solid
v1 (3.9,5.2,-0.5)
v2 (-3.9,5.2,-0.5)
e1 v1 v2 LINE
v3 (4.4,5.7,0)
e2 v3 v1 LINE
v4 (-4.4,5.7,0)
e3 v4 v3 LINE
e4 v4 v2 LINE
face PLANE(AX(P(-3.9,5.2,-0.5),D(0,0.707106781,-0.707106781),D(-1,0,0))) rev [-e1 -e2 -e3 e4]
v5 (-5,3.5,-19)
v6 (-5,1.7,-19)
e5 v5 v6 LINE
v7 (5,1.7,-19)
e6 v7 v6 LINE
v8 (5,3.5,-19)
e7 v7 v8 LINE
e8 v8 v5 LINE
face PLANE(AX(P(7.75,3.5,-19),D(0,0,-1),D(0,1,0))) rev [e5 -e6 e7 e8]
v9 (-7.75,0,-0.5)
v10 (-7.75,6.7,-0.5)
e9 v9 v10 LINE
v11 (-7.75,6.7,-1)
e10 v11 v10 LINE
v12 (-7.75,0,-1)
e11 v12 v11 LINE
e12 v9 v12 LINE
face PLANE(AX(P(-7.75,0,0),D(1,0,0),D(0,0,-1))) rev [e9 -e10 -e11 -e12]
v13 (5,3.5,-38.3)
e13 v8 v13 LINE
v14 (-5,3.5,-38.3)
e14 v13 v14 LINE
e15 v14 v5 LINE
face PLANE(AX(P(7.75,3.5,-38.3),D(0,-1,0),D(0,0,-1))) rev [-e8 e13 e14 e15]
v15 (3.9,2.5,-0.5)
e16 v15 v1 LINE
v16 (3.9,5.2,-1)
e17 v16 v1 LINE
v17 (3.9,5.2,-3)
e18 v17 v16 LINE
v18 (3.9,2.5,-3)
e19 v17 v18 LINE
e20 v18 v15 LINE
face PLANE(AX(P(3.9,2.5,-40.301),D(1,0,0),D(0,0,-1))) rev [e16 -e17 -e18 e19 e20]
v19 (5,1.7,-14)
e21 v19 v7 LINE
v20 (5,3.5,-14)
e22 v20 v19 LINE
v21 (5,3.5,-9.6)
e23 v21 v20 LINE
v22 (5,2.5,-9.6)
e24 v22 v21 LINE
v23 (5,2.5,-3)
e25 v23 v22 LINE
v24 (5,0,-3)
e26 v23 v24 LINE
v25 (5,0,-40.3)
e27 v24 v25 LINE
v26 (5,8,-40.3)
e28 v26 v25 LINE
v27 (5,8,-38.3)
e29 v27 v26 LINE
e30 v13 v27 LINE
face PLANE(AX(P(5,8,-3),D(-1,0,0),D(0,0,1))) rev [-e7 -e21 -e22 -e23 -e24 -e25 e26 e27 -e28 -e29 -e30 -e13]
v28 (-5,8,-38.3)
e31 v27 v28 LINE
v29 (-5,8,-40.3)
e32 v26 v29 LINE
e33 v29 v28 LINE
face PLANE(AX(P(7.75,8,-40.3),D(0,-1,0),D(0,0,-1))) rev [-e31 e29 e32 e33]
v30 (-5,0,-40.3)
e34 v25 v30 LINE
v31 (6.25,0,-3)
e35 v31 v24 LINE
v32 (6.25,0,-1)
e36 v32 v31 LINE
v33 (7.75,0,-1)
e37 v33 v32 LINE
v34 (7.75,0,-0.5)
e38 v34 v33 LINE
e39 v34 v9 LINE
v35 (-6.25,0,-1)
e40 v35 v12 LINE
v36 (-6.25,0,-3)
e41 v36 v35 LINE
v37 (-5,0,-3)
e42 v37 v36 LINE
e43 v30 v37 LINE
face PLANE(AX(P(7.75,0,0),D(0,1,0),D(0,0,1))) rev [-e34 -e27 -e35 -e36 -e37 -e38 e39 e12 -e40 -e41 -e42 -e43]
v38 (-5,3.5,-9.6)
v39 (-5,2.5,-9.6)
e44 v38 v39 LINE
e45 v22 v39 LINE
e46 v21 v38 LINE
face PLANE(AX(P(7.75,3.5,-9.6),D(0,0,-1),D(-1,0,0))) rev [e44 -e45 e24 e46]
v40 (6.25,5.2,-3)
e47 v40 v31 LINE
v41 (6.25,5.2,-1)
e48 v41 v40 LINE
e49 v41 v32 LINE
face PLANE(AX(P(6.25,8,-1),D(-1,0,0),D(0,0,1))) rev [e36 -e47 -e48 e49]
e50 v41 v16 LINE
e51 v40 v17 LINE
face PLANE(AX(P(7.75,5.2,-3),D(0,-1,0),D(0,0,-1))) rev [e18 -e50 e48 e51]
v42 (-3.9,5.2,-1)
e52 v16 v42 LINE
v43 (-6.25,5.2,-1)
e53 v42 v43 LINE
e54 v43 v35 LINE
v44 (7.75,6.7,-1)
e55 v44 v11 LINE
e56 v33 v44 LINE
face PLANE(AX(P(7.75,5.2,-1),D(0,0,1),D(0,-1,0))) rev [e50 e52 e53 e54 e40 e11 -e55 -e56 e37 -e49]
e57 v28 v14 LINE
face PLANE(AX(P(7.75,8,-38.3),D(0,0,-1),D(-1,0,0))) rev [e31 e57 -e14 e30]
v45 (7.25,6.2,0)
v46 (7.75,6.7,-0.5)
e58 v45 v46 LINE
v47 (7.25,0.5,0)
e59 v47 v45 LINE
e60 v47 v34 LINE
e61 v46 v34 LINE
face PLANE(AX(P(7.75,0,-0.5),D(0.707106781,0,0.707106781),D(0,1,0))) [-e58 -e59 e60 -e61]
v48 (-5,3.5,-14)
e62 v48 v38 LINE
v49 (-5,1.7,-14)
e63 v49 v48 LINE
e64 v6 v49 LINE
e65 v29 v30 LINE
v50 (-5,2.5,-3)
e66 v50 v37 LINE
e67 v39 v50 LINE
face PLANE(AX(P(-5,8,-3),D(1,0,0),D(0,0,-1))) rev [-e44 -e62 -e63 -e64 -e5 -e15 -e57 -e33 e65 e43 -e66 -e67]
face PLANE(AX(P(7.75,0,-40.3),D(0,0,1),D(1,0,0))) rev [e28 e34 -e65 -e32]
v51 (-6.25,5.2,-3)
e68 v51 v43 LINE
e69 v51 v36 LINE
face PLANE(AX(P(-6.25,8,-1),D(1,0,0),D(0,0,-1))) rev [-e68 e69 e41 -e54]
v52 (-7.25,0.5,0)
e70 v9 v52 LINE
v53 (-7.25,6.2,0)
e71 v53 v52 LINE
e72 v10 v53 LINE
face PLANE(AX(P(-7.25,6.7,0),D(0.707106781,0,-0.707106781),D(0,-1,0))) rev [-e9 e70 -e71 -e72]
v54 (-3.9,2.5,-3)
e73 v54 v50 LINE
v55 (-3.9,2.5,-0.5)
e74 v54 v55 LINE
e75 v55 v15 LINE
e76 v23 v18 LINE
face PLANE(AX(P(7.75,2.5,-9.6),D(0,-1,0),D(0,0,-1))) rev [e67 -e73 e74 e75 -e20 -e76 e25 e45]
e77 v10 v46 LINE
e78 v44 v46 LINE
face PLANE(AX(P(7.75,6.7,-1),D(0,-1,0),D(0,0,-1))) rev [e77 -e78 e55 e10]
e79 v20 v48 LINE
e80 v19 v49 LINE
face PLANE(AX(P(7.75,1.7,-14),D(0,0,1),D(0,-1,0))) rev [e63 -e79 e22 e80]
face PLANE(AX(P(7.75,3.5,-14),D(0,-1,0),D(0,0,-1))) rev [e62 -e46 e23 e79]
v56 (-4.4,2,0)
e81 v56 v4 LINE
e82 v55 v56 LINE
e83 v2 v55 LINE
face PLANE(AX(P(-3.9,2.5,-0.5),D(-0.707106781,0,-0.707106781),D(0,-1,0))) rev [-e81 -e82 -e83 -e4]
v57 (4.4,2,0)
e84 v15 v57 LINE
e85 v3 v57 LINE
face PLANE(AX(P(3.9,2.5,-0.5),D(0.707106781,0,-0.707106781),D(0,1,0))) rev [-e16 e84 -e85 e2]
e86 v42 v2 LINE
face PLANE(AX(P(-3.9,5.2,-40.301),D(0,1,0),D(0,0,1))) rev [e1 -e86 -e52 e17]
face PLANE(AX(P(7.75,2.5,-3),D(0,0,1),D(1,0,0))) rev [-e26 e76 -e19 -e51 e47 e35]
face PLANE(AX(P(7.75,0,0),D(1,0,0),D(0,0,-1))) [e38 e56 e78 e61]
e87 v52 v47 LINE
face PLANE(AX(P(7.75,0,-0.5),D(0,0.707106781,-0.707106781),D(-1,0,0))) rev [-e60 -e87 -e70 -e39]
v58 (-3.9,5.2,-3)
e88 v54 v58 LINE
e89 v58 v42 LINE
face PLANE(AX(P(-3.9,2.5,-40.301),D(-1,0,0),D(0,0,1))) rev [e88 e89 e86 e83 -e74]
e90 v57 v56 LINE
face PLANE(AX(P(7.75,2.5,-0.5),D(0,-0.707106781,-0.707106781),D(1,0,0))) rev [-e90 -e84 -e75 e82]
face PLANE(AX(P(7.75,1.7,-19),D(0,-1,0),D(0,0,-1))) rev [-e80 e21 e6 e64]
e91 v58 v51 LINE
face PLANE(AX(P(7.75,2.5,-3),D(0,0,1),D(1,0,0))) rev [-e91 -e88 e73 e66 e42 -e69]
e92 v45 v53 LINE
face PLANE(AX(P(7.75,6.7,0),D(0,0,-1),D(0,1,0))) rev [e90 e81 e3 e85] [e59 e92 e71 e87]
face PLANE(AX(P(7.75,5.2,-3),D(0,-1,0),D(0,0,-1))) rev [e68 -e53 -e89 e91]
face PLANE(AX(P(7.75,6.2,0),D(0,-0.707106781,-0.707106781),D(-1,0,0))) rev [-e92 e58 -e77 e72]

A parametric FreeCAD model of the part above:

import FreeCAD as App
import Part
import Sketcher
from FreeCAD import Vector
Q = App.Units.Quantity


def edges_at(feature, points):
    """Names of the edges that pass closest to the given points."""
    edges = feature.Shape.Edges
    near = lambda p: min(range(len(edges)), key=lambda i: edges[i].distToShape(Part.Vertex(*p))[0])
    return sorted({f"Edge{near(p) + 1}" for p in points})

doc = App.newDocument("Part")
params = doc.addObject("Spreadsheet::Sheet", "Params")
for row, (alias, value) in enumerate([
    ("sketch1_width", "8 mm"),
    ("sketch1_width2", "1 mm"),
    ("sketch1_height", "2 mm"),
    ("sketch1_height2", "5 mm"),
    ("sketch1_width3", "4.5 mm"),
    ("pad1_length", "15.5 mm"),
    ("sketch2_width", "30 mm"),
    ("sketch2_width2", "10 mm"),
    ("sketch2_height", "21 mm"),
    ("sketch2_height2", "2 mm"),
    ("sketch2_height3", "1 mm"),
    ("sketch3_width", "7.8 mm"),
    ("sketch3_height", "2.7 mm"),
    ("chamfer_size", "0.5 mm"),
], start=1):
    params.set(f"A{row}", alias)
    params.set(f"B{row}", "=" + value)
    params.setAlias(f"B{row}", alias)

body = doc.addObject("PartDesign::Body", "Body")

# Sketch on YZ plane
sketch1 = body.newObject("Sketcher::SketchObject", "Sketch")
sketch1.AttachmentSupport = (doc.getObject("YZ_Plane"), [""])
sketch1.MapMode = "FlatFace"
sketch1.addGeometry(Part.LineSegment(Vector(0, 0, 0), Vector(0, -40.3, 0)), False)
sketch1.addGeometry(Part.LineSegment(Vector(0, -40.3, 0), Vector(8, -40.3, 0)), False)
sketch1.addGeometry(Part.LineSegment(Vector(8, -40.3, 0), Vector(8, -38.3, 0)), False)
sketch1.addGeometry(Part.LineSegment(Vector(8, -38.3, 0), Vector(3.5, -38.3, 0)), False)
sketch1.addGeometry(Part.LineSegment(Vector(3.5, -38.3, 0), Vector(3.5, -19, 0)), False)
sketch1.addGeometry(Part.LineSegment(Vector(3.5, -19, 0), Vector(1.7, -19, 0)), False)
sketch1.addGeometry(Part.LineSegment(Vector(1.7, -19, 0), Vector(1.7, -14, 0)), False)
sketch1.addGeometry(Part.LineSegment(Vector(1.7, -14, 0), Vector(3.5, -14, 0)), False)
sketch1.addGeometry(Part.LineSegment(Vector(3.5, -14, 0), Vector(3.5, -9.6, 0)), False)
sketch1.addGeometry(Part.LineSegment(Vector(3.5, -9.6, 0), Vector(2.5, -9.6, 0)), False)
sketch1.addGeometry(Part.LineSegment(Vector(2.5, -9.6, 0), Vector(2.5, -3, 0)), False)
sketch1.addGeometry(Part.LineSegment(Vector(2.5, -3, 0), Vector(5.2, -3, 0)), False)
sketch1.addGeometry(Part.LineSegment(Vector(5.2, -3, 0), Vector(5.2, -1, 0)), False)
sketch1.addGeometry(Part.LineSegment(Vector(5.2, -1, 0), Vector(6.7, -1, 0)), False)
sketch1.addGeometry(Part.LineSegment(Vector(6.7, -1, 0), Vector(6.7, 0, 0)), False)
sketch1.addGeometry(Part.LineSegment(Vector(6.7, 0, 0), Vector(0, 0, 0)), False)
sketch1.addConstraint(Sketcher.Constraint("Coincident", 0, 2, 1, 1))
sketch1.addConstraint(Sketcher.Constraint("Coincident", 1, 2, 2, 1))
sketch1.addConstraint(Sketcher.Constraint("Coincident", 2, 2, 3, 1))
sketch1.addConstraint(Sketcher.Constraint("Coincident", 3, 2, 4, 1))
sketch1.addConstraint(Sketcher.Constraint("Coincident", 4, 2, 5, 1))
sketch1.addConstraint(Sketcher.Constraint("Coincident", 5, 2, 6, 1))
sketch1.addConstraint(Sketcher.Constraint("Coincident", 6, 2, 7, 1))
sketch1.addConstraint(Sketcher.Constraint("Coincident", 7, 2, 8, 1))
sketch1.addConstraint(Sketcher.Constraint("Coincident", 8, 2, 9, 1))
sketch1.addConstraint(Sketcher.Constraint("Coincident", 9, 2, 10, 1))
sketch1.addConstraint(Sketcher.Constraint("Coincident", 10, 2, 11, 1))
sketch1.addConstraint(Sketcher.Constraint("Coincident", 11, 2, 12, 1))
sketch1.addConstraint(Sketcher.Constraint("Coincident", 12, 2, 13, 1))
sketch1.addConstraint(Sketcher.Constraint("Coincident", 13, 2, 14, 1))
sketch1.addConstraint(Sketcher.Constraint("Coincident", 14, 2, 15, 1))
sketch1.addConstraint(Sketcher.Constraint("Coincident", 15, 2, 0, 1))
sketch1.addConstraint(Sketcher.Constraint("Vertical", 0))
sketch1.addConstraint(Sketcher.Constraint("Horizontal", 1))
sketch1.addConstraint(Sketcher.Constraint("Vertical", 2))
sketch1.addConstraint(Sketcher.Constraint("Horizontal", 3))
sketch1.addConstraint(Sketcher.Constraint("Vertical", 4))
sketch1.addConstraint(Sketcher.Constraint("Horizontal", 5))
sketch1.addConstraint(Sketcher.Constraint("Vertical", 6))
sketch1.addConstraint(Sketcher.Constraint("Horizontal", 7))
sketch1.addConstraint(Sketcher.Constraint("Vertical", 8))
sketch1.addConstraint(Sketcher.Constraint("Horizontal", 9))
sketch1.addConstraint(Sketcher.Constraint("Vertical", 10))
sketch1.addConstraint(Sketcher.Constraint("Horizontal", 11))
sketch1.addConstraint(Sketcher.Constraint("Vertical", 12))
sketch1.addConstraint(Sketcher.Constraint("Horizontal", 13))
sketch1.addConstraint(Sketcher.Constraint("Vertical", 14))
sketch1.addConstraint(Sketcher.Constraint("Horizontal", 15))
sketch1.addConstraint(Sketcher.Constraint("Coincident", 15, 2, -1, 1))
sketch1.addConstraint(Sketcher.Constraint("Vertical", 4, 2, 7, 2))
sketch1.addConstraint(Sketcher.Constraint("Equal", 2, 12))
sketch1.addConstraint(Sketcher.Constraint("Equal", 9, 14))
sketch1.addConstraint(Sketcher.Constraint("DistanceX", 1, 1, 1, 2, Q("8 mm")))
sketch1.addConstraint(Sketcher.Constraint("DistanceX", 9, 2, 9, 1, Q("1 mm")))
sketch1.addConstraint(Sketcher.Constraint("DistanceY", 2, 1, 2, 2, Q("2 mm")))
sketch1.addConstraint(Sketcher.Constraint("DistanceY", 6, 1, 6, 2, Q("5 mm")))
sketch1.addConstraint(Sketcher.Constraint("DistanceX", 3, 2, 3, 1, Q("4.5 mm")))
sketch1.addConstraint(Sketcher.Constraint("DistanceX", 5, 2, 5, 1, Q("1.8 mm")))
sketch1.addConstraint(Sketcher.Constraint("DistanceX", 11, 1, 11, 2, Q("2.7 mm")))
sketch1.addConstraint(Sketcher.Constraint("DistanceX", 13, 1, 13, 2, Q("1.5 mm")))
sketch1.addConstraint(Sketcher.Constraint("DistanceY", 0, 2, 0, 1, Q("40.3 mm")))
sketch1.addConstraint(Sketcher.Constraint("DistanceY", 4, 1, 4, 2, Q("19.3 mm")))
sketch1.addConstraint(Sketcher.Constraint("DistanceY", 8, 1, 8, 2, Q("4.4 mm")))
sketch1.setExpression("Constraints[36]", "Params.sketch1_width")
sketch1.setExpression("Constraints[37]", "Params.sketch1_width2")
sketch1.setExpression("Constraints[38]", "Params.sketch1_height")
sketch1.setExpression("Constraints[39]", "Params.sketch1_height2")
sketch1.setExpression("Constraints[40]", "Params.sketch1_width3")
pad1 = body.newObject("PartDesign::Pad", "Pad")
pad1.Profile = sketch1
pad1.setExpression("Length", "Params.pad1_length")
pad1.Midplane = True

# Sketch on XZ plane
sketch2 = body.newObject("Sketcher::SketchObject", "Sketch001")
sketch2.AttachmentSupport = (doc.getObject("XZ_Plane"), [""])
sketch2.MapMode = "FlatFace"
sketch2.addGeometry(Part.LineSegment(Vector(-17.8, 10, 0), Vector(17.8, 10, 0)), False)
sketch2.addGeometry(Part.LineSegment(Vector(17.8, 10, 0), Vector(17.8, -11, 0)), False)
sketch2.addGeometry(Part.LineSegment(Vector(17.8, -11, 0), Vector(16.2, -11, 0)), False)
sketch2.addGeometry(Part.LineSegment(Vector(16.2, -11, 0), Vector(16.2, -13, 0)), False)
sketch2.addGeometry(Part.LineSegment(Vector(16.2, -13, 0), Vector(15, -13, 0)), False)
sketch2.addGeometry(Part.LineSegment(Vector(15, -13, 0), Vector(15, -50.3, 0)), False)
sketch2.addGeometry(Part.LineSegment(Vector(15, -50.3, 0), Vector(-15, -50.3, 0)), False)
sketch2.addGeometry(Part.LineSegment(Vector(-15, -50.3, 0), Vector(-15, -13, 0)), False)
sketch2.addGeometry(Part.LineSegment(Vector(-15, -13, 0), Vector(-16.2, -13, 0)), False)
sketch2.addGeometry(Part.LineSegment(Vector(-16.2, -13, 0), Vector(-16.2, -11, 0)), False)
sketch2.addGeometry(Part.LineSegment(Vector(-16.2, -11, 0), Vector(-17.8, -11, 0)), False)
sketch2.addGeometry(Part.LineSegment(Vector(-17.8, -11, 0), Vector(-17.8, 10, 0)), False)
sketch2.addGeometry(Part.LineSegment(Vector(7.8, 0, 0), Vector(-7.8, 0, 0)), False)
sketch2.addGeometry(Part.LineSegment(Vector(-7.8, 0, 0), Vector(-7.8, -1, 0)), False)
sketch2.addGeometry(Part.LineSegment(Vector(-7.8, -1, 0), Vector(-6.2, -1, 0)), False)
sketch2.addGeometry(Part.LineSegment(Vector(-6.2, -1, 0), Vector(-6.2, -3, 0)), False)
sketch2.addGeometry(Part.LineSegment(Vector(-6.2, -3, 0), Vector(-5, -3, 0)), False)
sketch2.addGeometry(Part.LineSegment(Vector(-5, -3, 0), Vector(-5, -40.3, 0)), False)
sketch2.addGeometry(Part.LineSegment(Vector(-5, -40.3, 0), Vector(5, -40.3, 0)), False)
sketch2.addGeometry(Part.LineSegment(Vector(5, -40.3, 0), Vector(5, -3, 0)), False)
sketch2.addGeometry(Part.LineSegment(Vector(5, -3, 0), Vector(6.2, -3, 0)), False)
sketch2.addGeometry(Part.LineSegment(Vector(6.2, -3, 0), Vector(6.2, -1, 0)), False)
sketch2.addGeometry(Part.LineSegment(Vector(6.2, -1, 0), Vector(7.8, -1, 0)), False)
sketch2.addGeometry(Part.LineSegment(Vector(7.8, -1, 0), Vector(7.8, 0, 0)), False)
sketch2.addConstraint(Sketcher.Constraint("Coincident", 0, 2, 1, 1))
sketch2.addConstraint(Sketcher.Constraint("Coincident", 1, 2, 2, 1))
sketch2.addConstraint(Sketcher.Constraint("Coincident", 2, 2, 3, 1))
sketch2.addConstraint(Sketcher.Constraint("Coincident", 3, 2, 4, 1))
sketch2.addConstraint(Sketcher.Constraint("Coincident", 4, 2, 5, 1))
sketch2.addConstraint(Sketcher.Constraint("Coincident", 5, 2, 6, 1))
sketch2.addConstraint(Sketcher.Constraint("Coincident", 6, 2, 7, 1))
sketch2.addConstraint(Sketcher.Constraint("Coincident", 7, 2, 8, 1))
sketch2.addConstraint(Sketcher.Constraint("Coincident", 8, 2, 9, 1))
sketch2.addConstraint(Sketcher.Constraint("Coincident", 9, 2, 10, 1))
sketch2.addConstraint(Sketcher.Constraint("Coincident", 10, 2, 11, 1))
sketch2.addConstraint(Sketcher.Constraint("Coincident", 11, 2, 0, 1))
sketch2.addConstraint(Sketcher.Constraint("Coincident", 12, 2, 13, 1))
sketch2.addConstraint(Sketcher.Constraint("Coincident", 13, 2, 14, 1))
sketch2.addConstraint(Sketcher.Constraint("Coincident", 14, 2, 15, 1))
sketch2.addConstraint(Sketcher.Constraint("Coincident", 15, 2, 16, 1))
sketch2.addConstraint(Sketcher.Constraint("Coincident", 16, 2, 17, 1))
sketch2.addConstraint(Sketcher.Constraint("Coincident", 17, 2, 18, 1))
sketch2.addConstraint(Sketcher.Constraint("Coincident", 18, 2, 19, 1))
sketch2.addConstraint(Sketcher.Constraint("Coincident", 19, 2, 20, 1))
sketch2.addConstraint(Sketcher.Constraint("Coincident", 20, 2, 21, 1))
sketch2.addConstraint(Sketcher.Constraint("Coincident", 21, 2, 22, 1))
sketch2.addConstraint(Sketcher.Constraint("Coincident", 22, 2, 23, 1))
sketch2.addConstraint(Sketcher.Constraint("Coincident", 23, 2, 12, 1))
sketch2.addConstraint(Sketcher.Constraint("Horizontal", 0))
sketch2.addConstraint(Sketcher.Constraint("Vertical", 1))
sketch2.addConstraint(Sketcher.Constraint("Horizontal", 2))
sketch2.addConstraint(Sketcher.Constraint("Vertical", 3))
sketch2.addConstraint(Sketcher.Constraint("Horizontal", 4))
sketch2.addConstraint(Sketcher.Constraint("Vertical", 5))
sketch2.addConstraint(Sketcher.Constraint("Horizontal", 6))
sketch2.addConstraint(Sketcher.Constraint("Vertical", 7))
sketch2.addConstraint(Sketcher.Constraint("Horizontal", 8))
sketch2.addConstraint(Sketcher.Constraint("Vertical", 9))
sketch2.addConstraint(Sketcher.Constraint("Horizontal", 10))
sketch2.addConstraint(Sketcher.Constraint("Vertical", 11))
sketch2.addConstraint(Sketcher.Constraint("Horizontal", 12))
sketch2.addConstraint(Sketcher.Constraint("Vertical", 13))
sketch2.addConstraint(Sketcher.Constraint("Horizontal", 14))
sketch2.addConstraint(Sketcher.Constraint("Vertical", 15))
sketch2.addConstraint(Sketcher.Constraint("Horizontal", 16))
sketch2.addConstraint(Sketcher.Constraint("Vertical", 17))
sketch2.addConstraint(Sketcher.Constraint("Horizontal", 18))
sketch2.addConstraint(Sketcher.Constraint("Vertical", 19))
sketch2.addConstraint(Sketcher.Constraint("Horizontal", 20))
sketch2.addConstraint(Sketcher.Constraint("Vertical", 21))
sketch2.addConstraint(Sketcher.Constraint("Horizontal", 22))
sketch2.addConstraint(Sketcher.Constraint("Vertical", 23))
sketch2.addConstraint(Sketcher.Constraint("Symmetric", 12, 2, 23, 2, -1, 1))
sketch2.addConstraint(Sketcher.Constraint("Symmetric", 4, 2, 7, 2, -2))
sketch2.addConstraint(Sketcher.Constraint("Symmetric", 2, 2, 9, 2, -2))
sketch2.addConstraint(Sketcher.Constraint("Symmetric", 16, 2, 19, 2, -2))
sketch2.addConstraint(Sketcher.Constraint("Symmetric", 14, 2, 21, 2, -2))
sketch2.addConstraint(Sketcher.Constraint("Equal", 2, 10))
sketch2.addConstraint(Sketcher.Constraint("Equal", 10, 14))
sketch2.addConstraint(Sketcher.Constraint("Equal", 8, 16))
sketch2.addConstraint(Sketcher.Constraint("Equal", 9, 15))
sketch2.addConstraint(Sketcher.Constraint("Equal", 7, 17))
sketch2.addConstraint(Sketcher.Constraint("DistanceX", 6, 2, 6, 1, Q("30 mm")))
sketch2.addConstraint(Sketcher.Constraint("DistanceX", 18, 1, 18, 2, Q("10 mm")))
sketch2.addConstraint(Sketcher.Constraint("DistanceY", 1, 2, 1, 1, Q("21 mm")))
sketch2.addConstraint(Sketcher.Constraint("DistanceY", 3, 2, 3, 1, Q("2 mm")))
sketch2.addConstraint(Sketcher.Constraint("DistanceY", 13, 2, 13, 1, Q("1 mm")))
sketch2.addConstraint(Sketcher.Constraint("DistanceX", 0, 1, 0, 2, Q("35.5 mm")))
sketch2.addConstraint(Sketcher.Constraint("DistanceX", 2, 2, 2, 1, Q("1.5 mm")))
sketch2.addConstraint(Sketcher.Constraint("DistanceY", 5, 2, 5, 1, Q("37.3 mm")))
sketch2.addConstraint(Sketcher.Constraint("DistanceY", -1, 1, 0, 2, Q("10 mm")))
sketch2.setExpression("Constraints[58]", "Params.sketch2_width")
sketch2.setExpression("Constraints[59]", "Params.sketch2_width2")
sketch2.setExpression("Constraints[60]", "Params.sketch2_height")
sketch2.setExpression("Constraints[61]", "Params.sketch2_height2")
sketch2.setExpression("Constraints[62]", "Params.sketch2_height3")
pocket1 = body.newObject("PartDesign::Pocket", "Pocket")
pocket1.Profile = sketch2
pocket1.Type = "ThroughAll"

# Sketch on XY plane
sketch3 = body.newObject("Sketcher::SketchObject", "Sketch002")
sketch3.AttachmentSupport = (doc.getObject("XY_Plane"), [""])
sketch3.MapMode = "FlatFace"
sketch3.addGeometry(Part.LineSegment(Vector(-3.9, 5.2, 0), Vector(-3.9, 2.5, 0)), False)
sketch3.addGeometry(Part.LineSegment(Vector(-3.9, 2.5, 0), Vector(3.9, 2.5, 0)), False)
sketch3.addGeometry(Part.LineSegment(Vector(3.9, 2.5, 0), Vector(3.9, 5.2, 0)), False)
sketch3.addGeometry(Part.LineSegment(Vector(3.9, 5.2, 0), Vector(-3.9, 5.2, 0)), False)
sketch3.addConstraint(Sketcher.Constraint("Coincident", 0, 2, 1, 1))
sketch3.addConstraint(Sketcher.Constraint("Coincident", 1, 2, 2, 1))
sketch3.addConstraint(Sketcher.Constraint("Coincident", 2, 2, 3, 1))
sketch3.addConstraint(Sketcher.Constraint("Coincident", 3, 2, 0, 1))
sketch3.addConstraint(Sketcher.Constraint("Vertical", 0))
sketch3.addConstraint(Sketcher.Constraint("Horizontal", 1))
sketch3.addConstraint(Sketcher.Constraint("Vertical", 2))
sketch3.addConstraint(Sketcher.Constraint("Horizontal", 3))
sketch3.addConstraint(Sketcher.Constraint("DistanceX", 1, 1, 1, 2, Q("7.8 mm")))
sketch3.addConstraint(Sketcher.Constraint("DistanceY", 0, 2, 0, 1, Q("2.7 mm")))
sketch3.addConstraint(Sketcher.Constraint("DistanceX", 0, 2, -1, 1, Q("3.9 mm")))
sketch3.addConstraint(Sketcher.Constraint("DistanceY", -1, 1, 0, 2, Q("2.5 mm")))
sketch3.setExpression("Constraints[8]", "Params.sketch3_width")
sketch3.setExpression("Constraints[9]", "Params.sketch3_height")
pocket2 = body.newObject("PartDesign::Pocket", "Pocket001")
pocket2.Profile = sketch3
pocket2.Type = "UpToFirst"
doc.recompute()

chamfer = body.newObject("PartDesign::Chamfer", "Chamfer")
chamfer.Base = (pocket2, edges_at(pocket2, [
    (-3.9, 3.85, 0),
    (0, 2.5, 0),
    (3.9, 3.85, 0),
    (0, 5.2, 0),
    (-7.75, 3.35, 0),
    (0, 6.7, 0),
    (0, 0, 0),
    (7.75, 3.35, 0),
]))
chamfer.setExpression("Size", "Params.chamfer_size")

doc.recompute()
